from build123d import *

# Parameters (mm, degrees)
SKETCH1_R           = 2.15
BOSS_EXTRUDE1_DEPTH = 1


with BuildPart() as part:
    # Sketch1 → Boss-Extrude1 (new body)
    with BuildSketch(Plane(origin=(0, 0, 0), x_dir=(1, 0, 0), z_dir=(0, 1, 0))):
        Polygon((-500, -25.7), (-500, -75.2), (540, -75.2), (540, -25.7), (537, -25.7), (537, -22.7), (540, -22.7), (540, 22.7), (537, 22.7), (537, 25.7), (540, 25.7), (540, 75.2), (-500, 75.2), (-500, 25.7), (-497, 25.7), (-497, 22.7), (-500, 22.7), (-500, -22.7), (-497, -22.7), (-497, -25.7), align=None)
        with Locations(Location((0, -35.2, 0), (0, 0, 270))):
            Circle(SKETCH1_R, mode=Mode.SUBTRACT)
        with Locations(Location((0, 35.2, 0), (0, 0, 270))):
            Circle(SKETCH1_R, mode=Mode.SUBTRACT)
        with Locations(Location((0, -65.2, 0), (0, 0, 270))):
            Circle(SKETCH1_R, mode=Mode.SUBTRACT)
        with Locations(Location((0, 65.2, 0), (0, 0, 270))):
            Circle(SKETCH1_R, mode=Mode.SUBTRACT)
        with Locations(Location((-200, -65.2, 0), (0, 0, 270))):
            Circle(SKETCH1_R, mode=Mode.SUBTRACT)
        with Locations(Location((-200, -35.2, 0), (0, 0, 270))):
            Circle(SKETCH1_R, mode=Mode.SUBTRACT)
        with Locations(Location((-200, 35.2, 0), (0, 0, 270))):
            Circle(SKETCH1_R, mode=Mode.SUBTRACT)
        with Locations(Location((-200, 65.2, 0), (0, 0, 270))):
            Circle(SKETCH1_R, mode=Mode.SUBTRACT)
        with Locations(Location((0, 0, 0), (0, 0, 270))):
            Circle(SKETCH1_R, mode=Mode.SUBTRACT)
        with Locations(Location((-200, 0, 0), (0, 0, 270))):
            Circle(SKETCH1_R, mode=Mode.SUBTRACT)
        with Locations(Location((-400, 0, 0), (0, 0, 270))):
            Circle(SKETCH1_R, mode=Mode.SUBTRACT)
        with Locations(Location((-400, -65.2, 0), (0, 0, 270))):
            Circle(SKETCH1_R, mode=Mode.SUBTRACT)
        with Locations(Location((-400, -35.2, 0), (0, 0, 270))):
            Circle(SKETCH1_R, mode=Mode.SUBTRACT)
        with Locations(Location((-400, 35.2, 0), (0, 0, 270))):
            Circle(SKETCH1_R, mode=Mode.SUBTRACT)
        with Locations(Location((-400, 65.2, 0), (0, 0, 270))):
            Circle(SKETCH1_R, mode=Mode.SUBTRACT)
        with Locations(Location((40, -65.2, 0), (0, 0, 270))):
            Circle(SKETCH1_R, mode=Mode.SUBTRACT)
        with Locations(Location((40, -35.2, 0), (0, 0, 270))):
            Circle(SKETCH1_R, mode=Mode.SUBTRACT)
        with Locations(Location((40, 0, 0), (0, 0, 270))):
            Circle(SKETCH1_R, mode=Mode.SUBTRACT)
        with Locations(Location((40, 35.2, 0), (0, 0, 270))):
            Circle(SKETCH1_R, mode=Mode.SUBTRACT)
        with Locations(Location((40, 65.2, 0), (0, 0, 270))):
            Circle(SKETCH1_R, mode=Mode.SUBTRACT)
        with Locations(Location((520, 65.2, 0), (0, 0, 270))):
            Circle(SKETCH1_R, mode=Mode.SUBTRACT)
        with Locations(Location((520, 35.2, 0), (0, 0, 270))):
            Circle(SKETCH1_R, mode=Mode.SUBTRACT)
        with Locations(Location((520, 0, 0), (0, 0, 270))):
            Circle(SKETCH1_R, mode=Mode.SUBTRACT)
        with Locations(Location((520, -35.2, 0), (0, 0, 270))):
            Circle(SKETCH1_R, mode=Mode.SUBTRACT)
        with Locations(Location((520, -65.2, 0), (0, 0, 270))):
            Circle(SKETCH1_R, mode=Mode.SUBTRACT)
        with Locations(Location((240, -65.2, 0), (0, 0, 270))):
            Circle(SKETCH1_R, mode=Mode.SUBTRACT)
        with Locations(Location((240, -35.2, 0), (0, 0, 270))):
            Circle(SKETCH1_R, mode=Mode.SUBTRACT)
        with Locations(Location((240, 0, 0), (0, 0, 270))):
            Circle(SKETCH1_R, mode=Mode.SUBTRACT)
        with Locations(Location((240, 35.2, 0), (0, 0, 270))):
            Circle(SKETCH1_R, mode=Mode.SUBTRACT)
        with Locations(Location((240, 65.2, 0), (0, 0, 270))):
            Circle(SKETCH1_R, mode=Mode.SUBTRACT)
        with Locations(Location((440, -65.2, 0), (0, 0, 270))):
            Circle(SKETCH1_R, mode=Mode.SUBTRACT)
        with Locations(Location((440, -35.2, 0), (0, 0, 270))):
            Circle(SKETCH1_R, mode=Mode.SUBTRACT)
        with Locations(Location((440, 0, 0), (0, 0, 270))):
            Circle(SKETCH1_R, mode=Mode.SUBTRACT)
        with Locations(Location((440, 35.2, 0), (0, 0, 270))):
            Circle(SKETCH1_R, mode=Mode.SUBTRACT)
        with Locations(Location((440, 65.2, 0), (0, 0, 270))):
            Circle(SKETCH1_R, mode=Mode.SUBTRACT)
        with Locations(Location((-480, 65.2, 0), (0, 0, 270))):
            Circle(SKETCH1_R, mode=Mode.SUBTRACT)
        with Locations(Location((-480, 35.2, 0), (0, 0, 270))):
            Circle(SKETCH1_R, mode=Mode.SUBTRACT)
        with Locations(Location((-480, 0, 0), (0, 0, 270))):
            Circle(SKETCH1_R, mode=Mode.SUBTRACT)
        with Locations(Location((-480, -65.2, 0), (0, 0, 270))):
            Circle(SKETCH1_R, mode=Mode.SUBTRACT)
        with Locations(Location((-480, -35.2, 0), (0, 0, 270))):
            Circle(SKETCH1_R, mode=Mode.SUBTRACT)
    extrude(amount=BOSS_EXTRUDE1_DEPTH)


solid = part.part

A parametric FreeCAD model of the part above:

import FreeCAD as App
import Part
import Sketcher
from FreeCAD import Vector


def add_polygon(sketch, points):
    """Adds a closed chain of lines whose ends are joined by coincident constraints."""
    first, n = sketch.GeometryCount, len(points)
    for a, b in zip(points, points[1:] + points[:1]):
        sketch.addGeometry(Part.LineSegment(App.Vector(*a, 0), App.Vector(*b, 0)), False)
    for i in range(n):
        sketch.addConstraint(Sketcher.Constraint("Coincident", first + i, 2, first + (i + 1) % n, 1))

doc = App.newDocument("Part")
body = doc.addObject("PartDesign::Body", "Body")

# Sketch on XZ plane
sketch1 = body.newObject("Sketcher::SketchObject", "Sketch")
sketch1.AttachmentSupport = (doc.getObject("XZ_Plane"), [""])
sketch1.MapMode = "FlatFace"
add_polygon(sketch1, [(-500, 25.7), (-500, 75.2), (540, 75.2), (540, 25.7), (537, 25.7), (537, 22.7), (540, 22.7), (540, -22.7), (537, -22.7), (537, -25.7), (540, -25.7), (540, -75.2), (-500, -75.2), (-500, -25.7), (-497, -25.7), (-497, -22.7), (-500, -22.7), (-500, 22.7), (-497, 22.7), (-497, 25.7)])  # lines 0-19
sketch1.addGeometry(Part.Circle(Vector(-480, 65.2, 0), Vector(0, 0, 1), 2.1), False)  # 20
sketch1.addGeometry(Part.Circle(Vector(-400, 65.2, 0), Vector(0, 0, 1), 2.1), False)  # 21
sketch1.addGeometry(Part.Circle(Vector(-480, 35.2, 0), Vector(0, 0, 1), 2.1), False)  # 22
sketch1.addGeometry(Part.Circle(Vector(-400, 35.2, 0), Vector(0, 0, 1), 2.1), False)  # 23
sketch1.addGeometry(Part.Circle(Vector(-200, 65.2, 0), Vector(0, 0, 1), 2.1), False)  # 24
sketch1.addGeometry(Part.Circle(Vector(0, 65.2, 0), Vector(0, 0, 1), 2.1), False)  # 25
sketch1.addGeometry(Part.Circle(Vector(-200, 35.2, 0), Vector(0, 0, 1), 2.1), False)  # 26
sketch1.addGeometry(Part.Circle(Vector(0, 35.2, 0), Vector(0, 0, 1), 2.1), False)  # 27
sketch1.addGeometry(Part.Circle(Vector(40, 65.2, 0), Vector(0, 0, 1), 2.1), False)  # 28
sketch1.addGeometry(Part.Circle(Vector(240, 65.2, 0), Vector(0, 0, 1), 2.1), False)  # 29
sketch1.addGeometry(Part.Circle(Vector(40, 35.2, 0), Vector(0, 0, 1), 2.1), False)  # 30
sketch1.addGeometry(Part.Circle(Vector(240, 35.2, 0), Vector(0, 0, 1), 2.1), False)  # 31
sketch1.addGeometry(Part.Circle(Vector(440, 65.2, 0), Vector(0, 0, 1), 2.1), False)  # 32
sketch1.addGeometry(Part.Circle(Vector(520, 65.2, 0), Vector(0, 0, 1), 2.1), False)  # 33
sketch1.addGeometry(Part.Circle(Vector(440, 35.2, 0), Vector(0, 0, 1), 2.1), False)  # 34
sketch1.addGeometry(Part.Circle(Vector(520, 35.2, 0), Vector(0, 0, 1), 2.1), False)  # 35
sketch1.addGeometry(Part.Circle(Vector(-480, 0, 0), Vector(0, 0, 1), 2.1), False)  # 36
sketch1.addGeometry(Part.Circle(Vector(-400, 0, 0), Vector(0, 0, 1), 2.1), False)  # 37
sketch1.addGeometry(Part.Circle(Vector(-200, 0, 0), Vector(0, 0, 1), 2.1), False)  # 38
sketch1.addGeometry(Part.Circle(Vector(0, 0, 0), Vector(0, 0, 1), 2.1), False)  # 39
sketch1.addGeometry(Part.Circle(Vector(-480, -35.2, 0), Vector(0, 0, 1), 2.1), False)  # 40
sketch1.addGeometry(Part.Circle(Vector(-400, -35.2, 0), Vector(0, 0, 1), 2.1), False)  # 41
sketch1.addGeometry(Part.Circle(Vector(-480, -65.2, 0), Vector(0, 0, 1), 2.1), False)  # 42
sketch1.addGeometry(Part.Circle(Vector(-400, -65.2, 0), Vector(0, 0, 1), 2.1), False)  # 43
sketch1.addGeometry(Part.Circle(Vector(-200, -35.2, 0), Vector(0, 0, 1), 2.1), False)  # 44
sketch1.addGeometry(Part.Circle(Vector(0, -35.2, 0), Vector(0, 0, 1), 2.1), False)  # 45
sketch1.addGeometry(Part.Circle(Vector(-200, -65.2, 0), Vector(0, 0, 1), 2.1), False)  # 46
sketch1.addGeometry(Part.Circle(Vector(0, -65.2, 0), Vector(0, 0, 1), 2.1), False)  # 47
sketch1.addGeometry(Part.Circle(Vector(40, 0, 0), Vector(0, 0, 1), 2.1), False)  # 48
sketch1.addGeometry(Part.Circle(Vector(240, 0, 0), Vector(0, 0, 1), 2.1), False)  # 49
sketch1.addGeometry(Part.Circle(Vector(440, 0, 0), Vector(0, 0, 1), 2.1), False)  # 50
sketch1.addGeometry(Part.Circle(Vector(520, 0, 0), Vector(0, 0, 1), 2.1), False)  # 51
sketch1.addGeometry(Part.Circle(Vector(40, -35.2, 0), Vector(0, 0, 1), 2.1), False)  # 52
sketch1.addGeometry(Part.Circle(Vector(240, -35.2, 0), Vector(0, 0, 1), 2.1), False)  # 53
sketch1.addGeometry(Part.Circle(Vector(40, -65.2, 0), Vector(0, 0, 1), 2.1), False)  # 54
sketch1.addGeometry(Part.Circle(Vector(240, -65.2, 0), Vector(0, 0, 1), 2.1), False)  # 55
sketch1.addGeometry(Part.Circle(Vector(440, -35.2, 0), Vector(0, 0, 1), 2.1), False)  # 56
sketch1.addGeometry(Part.Circle(Vector(520, -35.2, 0), Vector(0, 0, 1), 2.1), False)  # 57
sketch1.addGeometry(Part.Circle(Vector(440, -65.2, 0), Vector(0, 0, 1), 2.1), False)  # 58
sketch1.addGeometry(Part.Circle(Vector(520, -65.2, 0), Vector(0, 0, 1), 2.1), False)  # 59
sketch1.addConstraint([
    Sketcher.Constraint("Vertical", 0),
    Sketcher.Constraint("Horizontal", 1),
    Sketcher.Constraint("Vertical", 2),
    Sketcher.Constraint("Horizontal", 3),
    Sketcher.Constraint("Vertical", 4),
    Sketcher.Constraint("Horizontal", 5),
    Sketcher.Constraint("Vertical", 6),
    Sketcher.Constraint("Horizontal", 7),
    Sketcher.Constraint("Vertical", 8),
    Sketcher.Constraint("Horizontal", 9),
    Sketcher.Constraint("Vertical", 10),
    Sketcher.Constraint("Horizontal", 11),
    Sketcher.Constraint("Vertical", 12),
    Sketcher.Constraint("Horizontal", 13),
    Sketcher.Constraint("Vertical", 14),
    Sketcher.Constraint("Horizontal", 15),
    Sketcher.Constraint("Vertical", 16),
    Sketcher.Constraint("Horizontal", 17),
    Sketcher.Constraint("Vertical", 18),
    Sketcher.Constraint("Horizontal", 19),
    Sketcher.Constraint("Coincident", 39, 3, -1, 1),
    Sketcher.Constraint("Equal", 20, 21),
    Sketcher.Constraint("Equal", 21, 22),
    Sketcher.Constraint("Equal", 22, 23),
    Sketcher.Constraint("Equal", 23, 24),
    Sketcher.Constraint("Equal", 24, 25),
    Sketcher.Constraint("Equal", 25, 26),
    Sketcher.Constraint("Equal", 26, 27),
    Sketcher.Constraint("Equal", 27, 28),
    Sketcher.Constraint("Equal", 28, 29),
    Sketcher.Constraint("Equal", 29, 30),
    Sketcher.Constraint("Equal", 30, 31),
    Sketcher.Constraint("Equal", 31, 32),
    Sketcher.Constraint("Equal", 32, 33),
    Sketcher.Constraint("Equal", 33, 34),
    Sketcher.Constraint("Equal", 34, 35),
    Sketcher.Constraint("Equal", 35, 36),
    Sketcher.Constraint("Equal", 36, 37),
    Sketcher.Constraint("Equal", 37, 38),
    Sketcher.Constraint("Equal", 38, 39),
    Sketcher.Constraint("Equal", 39, 40),
    Sketcher.Constraint("Equal", 40, 41),
    Sketcher.Constraint("Equal", 41, 42),
    Sketcher.Constraint("Equal", 42, 43),
    Sketcher.Constraint("Equal", 43, 44),
    Sketcher.Constraint("Equal", 44, 45),
    Sketcher.Constraint("Equal", 45, 46),
    Sketcher.Constraint("Equal", 46, 47),
    Sketcher.Constraint("Equal", 47, 48),
    Sketcher.Constraint("Equal", 48, 49),
    Sketcher.Constraint("Equal", 49, 50),
    Sketcher.Constraint("Equal", 50, 51),
    Sketcher.Constraint("Equal", 51, 52),
    Sketcher.Constraint("Equal", 52, 53),
    Sketcher.Constraint("Equal", 53, 54),
    Sketcher.Constraint("Equal", 54, 55),
    Sketcher.Constraint("Equal", 55, 56),
    Sketcher.Constraint("Equal", 56, 57),
    Sketcher.Constraint("Equal", 57, 58),
    Sketcher.Constraint("Equal", 58, 59),
    Sketcher.Constraint("Symmetric", 27, 3, 45, 3, -1, 1),
    Sketcher.Constraint("Symmetric", 25, 3, 47, 3, -1, 1),
    Sketcher.Constraint("Symmetric", 22, 3, 40, 3, -1),
    Sketcher.Constraint("Symmetric", 23, 3, 41, 3, -1),
    Sketcher.Constraint("Symmetric", 20, 3, 42, 3, -1),
    Sketcher.Constraint("Symmetric", 21, 3, 43, 3, -1),
    Sketcher.Constraint("Symmetric", 26, 3, 44, 3, -1),
    Sketcher.Constraint("Symmetric", 24, 3, 46, 3, -1),
    Sketcher.Constraint("Symmetric", 30, 3, 52, 3, -1),
    Sketcher.Constraint("Symmetric", 31, 3, 53, 3, -1),
    Sketcher.Constraint("Symmetric", 28, 3, 54, 3, -1),
    Sketcher.Constraint("Symmetric", 29, 3, 55, 3, -1),
    Sketcher.Constraint("Symmetric", 34, 3, 56, 3, -1),
    Sketcher.Constraint("Symmetric", 35, 3, 57, 3, -1),
    Sketcher.Constraint("Symmetric", 32, 3, 58, 3, -1),
    Sketcher.Constraint("Symmetric", 33, 3, 59, 3, -1),
    Sketcher.Constraint("Symmetric", 4, 2, 7, 2, -1),
    Sketcher.Constraint("Symmetric", 2, 2, 9, 2, -1),
    Sketcher.Constraint("Symmetric", 0, 2, 11, 2, -1),
    Sketcher.Constraint("Symmetric", 14, 2, 17, 2, -1),
    Sketcher.Constraint("PointOnObject", 25, 3, -2),
    Sketcher.Constraint("PointOnObject", 27, 3, -2),
    Sketcher.Constraint("PointOnObject", 36, 3, -1),
    Sketcher.Constraint("PointOnObject", 37, 3, -1),
    Sketcher.Constraint("PointOnObject", 38, 3, -1),
    Sketcher.Constraint("PointOnObject", 48, 3, -1),
    Sketcher.Constraint("PointOnObject", 49, 3, -1),
    Sketcher.Constraint("PointOnObject", 50, 3, -1),
    Sketcher.Constraint("PointOnObject", 51, 3, -1),
    Sketcher.Constraint("Horizontal", 20, 3, 21, 3),
    Sketcher.Constraint("Horizontal", 22, 3, 23, 3),
    Sketcher.Constraint("Horizontal", 21, 3, 24, 3),
    Sketcher.Constraint("Horizontal", 24, 3, 25, 3),
    Sketcher.Constraint("Horizontal", 23, 3, 26, 3),
    Sketcher.Constraint("Horizontal", 26, 3, 27, 3),
    Sketcher.Constraint("Horizontal", 25, 3, 28, 3),
    Sketcher.Constraint("Horizontal", 28, 3, 29, 3),
    Sketcher.Constraint("Horizontal", 27, 3, 30, 3),
    Sketcher.Constraint("Horizontal", 30, 3, 31, 3),
    Sketcher.Constraint("Horizontal", 29, 3, 32, 3),
    Sketcher.Constraint("Horizontal", 32, 3, 33, 3),
    Sketcher.Constraint("Horizontal", 31, 3, 34, 3),
    Sketcher.Constraint("Horizontal", 34, 3, 35, 3),
    Sketcher.Constraint("Horizontal", 9, 2, 12, 2),
    Sketcher.Constraint("Horizontal", 7, 2, 14, 2),
    Sketcher.Constraint("Horizontal", 3, 2, 18, 2),
    Sketcher.Constraint("Vertical", 20, 3, 22, 3),
    Sketcher.Constraint("Vertical", 21, 3, 23, 3),
    Sketcher.Constraint("Vertical", 24, 3, 26, 3),
    Sketcher.Constraint("Vertical", 28, 3, 30, 3),
    Sketcher.Constraint("Vertical", 29, 3, 31, 3),
    Sketcher.Constraint("Vertical", 32, 3, 34, 3),
    Sketcher.Constraint("Vertical", 33, 3, 35, 3),
    Sketcher.Constraint("Vertical", 22, 3, 36, 3),
    Sketcher.Constraint("Vertical", 23, 3, 37, 3),
    Sketcher.Constraint("Vertical", 26, 3, 38, 3),
    Sketcher.Constraint("Vertical", 30, 3, 48, 3),
    Sketcher.Constraint("Vertical", 31, 3, 49, 3),
    Sketcher.Constraint("Vertical", 34, 3, 50, 3),
    Sketcher.Constraint("Vertical", 35, 3, 51, 3),
    Sketcher.Constraint("Vertical", 2, 2, 5, 2),
    Sketcher.Constraint("Vertical", 12, 2, 15, 2),
    Sketcher.Constraint("Equal", 9, 13),
    Sketcher.Constraint("Equal", 19, 4),
    Sketcher.Constraint("Diameter", 20, 4.3),
    Sketcher.Constraint("DistanceX", 1, 1, 1, 2, 1040.0),
    Sketcher.Constraint("DistanceX", 3, 2, 3, 1, 3.0),
    Sketcher.Constraint("DistanceY", 0, 1, 0, 2, 49.5),
    Sketcher.Constraint("DistanceY", 6, 2, 6, 1, 45.4),
    Sketcher.Constraint("DistanceX", 20, 3, -1, 1, 480.0),
    Sketcher.Constraint("DistanceX", 21, 3, -1, 1, 400.0),
    Sketcher.Constraint("DistanceX", 24, 3, -1, 1, 200.0),
    Sketcher.Constraint("DistanceX", -1, 1, 28, 3, 40.0),
    Sketcher.Constraint("DistanceX", -1, 1, 29, 3, 240.0),
    Sketcher.Constraint("DistanceX", -1, 1, 32, 3, 440.0),
    Sketcher.Constraint("DistanceX", -1, 1, 33, 3, 520.0),
    Sketcher.Constraint("DistanceX", 0, 2, -1, 1, 500.0),
    Sketcher.Constraint("DistanceY", 22, 3, 20, 3, 30.0),
    Sketcher.Constraint("DistanceY", 20, 3, 0, 2, 10.0),
])
pad1 = body.newObject("PartDesign::Pad", "Pad")
pad1.Profile = sketch1
pad1.Length = 1
pad1.Reversed = True

doc.recompute()
